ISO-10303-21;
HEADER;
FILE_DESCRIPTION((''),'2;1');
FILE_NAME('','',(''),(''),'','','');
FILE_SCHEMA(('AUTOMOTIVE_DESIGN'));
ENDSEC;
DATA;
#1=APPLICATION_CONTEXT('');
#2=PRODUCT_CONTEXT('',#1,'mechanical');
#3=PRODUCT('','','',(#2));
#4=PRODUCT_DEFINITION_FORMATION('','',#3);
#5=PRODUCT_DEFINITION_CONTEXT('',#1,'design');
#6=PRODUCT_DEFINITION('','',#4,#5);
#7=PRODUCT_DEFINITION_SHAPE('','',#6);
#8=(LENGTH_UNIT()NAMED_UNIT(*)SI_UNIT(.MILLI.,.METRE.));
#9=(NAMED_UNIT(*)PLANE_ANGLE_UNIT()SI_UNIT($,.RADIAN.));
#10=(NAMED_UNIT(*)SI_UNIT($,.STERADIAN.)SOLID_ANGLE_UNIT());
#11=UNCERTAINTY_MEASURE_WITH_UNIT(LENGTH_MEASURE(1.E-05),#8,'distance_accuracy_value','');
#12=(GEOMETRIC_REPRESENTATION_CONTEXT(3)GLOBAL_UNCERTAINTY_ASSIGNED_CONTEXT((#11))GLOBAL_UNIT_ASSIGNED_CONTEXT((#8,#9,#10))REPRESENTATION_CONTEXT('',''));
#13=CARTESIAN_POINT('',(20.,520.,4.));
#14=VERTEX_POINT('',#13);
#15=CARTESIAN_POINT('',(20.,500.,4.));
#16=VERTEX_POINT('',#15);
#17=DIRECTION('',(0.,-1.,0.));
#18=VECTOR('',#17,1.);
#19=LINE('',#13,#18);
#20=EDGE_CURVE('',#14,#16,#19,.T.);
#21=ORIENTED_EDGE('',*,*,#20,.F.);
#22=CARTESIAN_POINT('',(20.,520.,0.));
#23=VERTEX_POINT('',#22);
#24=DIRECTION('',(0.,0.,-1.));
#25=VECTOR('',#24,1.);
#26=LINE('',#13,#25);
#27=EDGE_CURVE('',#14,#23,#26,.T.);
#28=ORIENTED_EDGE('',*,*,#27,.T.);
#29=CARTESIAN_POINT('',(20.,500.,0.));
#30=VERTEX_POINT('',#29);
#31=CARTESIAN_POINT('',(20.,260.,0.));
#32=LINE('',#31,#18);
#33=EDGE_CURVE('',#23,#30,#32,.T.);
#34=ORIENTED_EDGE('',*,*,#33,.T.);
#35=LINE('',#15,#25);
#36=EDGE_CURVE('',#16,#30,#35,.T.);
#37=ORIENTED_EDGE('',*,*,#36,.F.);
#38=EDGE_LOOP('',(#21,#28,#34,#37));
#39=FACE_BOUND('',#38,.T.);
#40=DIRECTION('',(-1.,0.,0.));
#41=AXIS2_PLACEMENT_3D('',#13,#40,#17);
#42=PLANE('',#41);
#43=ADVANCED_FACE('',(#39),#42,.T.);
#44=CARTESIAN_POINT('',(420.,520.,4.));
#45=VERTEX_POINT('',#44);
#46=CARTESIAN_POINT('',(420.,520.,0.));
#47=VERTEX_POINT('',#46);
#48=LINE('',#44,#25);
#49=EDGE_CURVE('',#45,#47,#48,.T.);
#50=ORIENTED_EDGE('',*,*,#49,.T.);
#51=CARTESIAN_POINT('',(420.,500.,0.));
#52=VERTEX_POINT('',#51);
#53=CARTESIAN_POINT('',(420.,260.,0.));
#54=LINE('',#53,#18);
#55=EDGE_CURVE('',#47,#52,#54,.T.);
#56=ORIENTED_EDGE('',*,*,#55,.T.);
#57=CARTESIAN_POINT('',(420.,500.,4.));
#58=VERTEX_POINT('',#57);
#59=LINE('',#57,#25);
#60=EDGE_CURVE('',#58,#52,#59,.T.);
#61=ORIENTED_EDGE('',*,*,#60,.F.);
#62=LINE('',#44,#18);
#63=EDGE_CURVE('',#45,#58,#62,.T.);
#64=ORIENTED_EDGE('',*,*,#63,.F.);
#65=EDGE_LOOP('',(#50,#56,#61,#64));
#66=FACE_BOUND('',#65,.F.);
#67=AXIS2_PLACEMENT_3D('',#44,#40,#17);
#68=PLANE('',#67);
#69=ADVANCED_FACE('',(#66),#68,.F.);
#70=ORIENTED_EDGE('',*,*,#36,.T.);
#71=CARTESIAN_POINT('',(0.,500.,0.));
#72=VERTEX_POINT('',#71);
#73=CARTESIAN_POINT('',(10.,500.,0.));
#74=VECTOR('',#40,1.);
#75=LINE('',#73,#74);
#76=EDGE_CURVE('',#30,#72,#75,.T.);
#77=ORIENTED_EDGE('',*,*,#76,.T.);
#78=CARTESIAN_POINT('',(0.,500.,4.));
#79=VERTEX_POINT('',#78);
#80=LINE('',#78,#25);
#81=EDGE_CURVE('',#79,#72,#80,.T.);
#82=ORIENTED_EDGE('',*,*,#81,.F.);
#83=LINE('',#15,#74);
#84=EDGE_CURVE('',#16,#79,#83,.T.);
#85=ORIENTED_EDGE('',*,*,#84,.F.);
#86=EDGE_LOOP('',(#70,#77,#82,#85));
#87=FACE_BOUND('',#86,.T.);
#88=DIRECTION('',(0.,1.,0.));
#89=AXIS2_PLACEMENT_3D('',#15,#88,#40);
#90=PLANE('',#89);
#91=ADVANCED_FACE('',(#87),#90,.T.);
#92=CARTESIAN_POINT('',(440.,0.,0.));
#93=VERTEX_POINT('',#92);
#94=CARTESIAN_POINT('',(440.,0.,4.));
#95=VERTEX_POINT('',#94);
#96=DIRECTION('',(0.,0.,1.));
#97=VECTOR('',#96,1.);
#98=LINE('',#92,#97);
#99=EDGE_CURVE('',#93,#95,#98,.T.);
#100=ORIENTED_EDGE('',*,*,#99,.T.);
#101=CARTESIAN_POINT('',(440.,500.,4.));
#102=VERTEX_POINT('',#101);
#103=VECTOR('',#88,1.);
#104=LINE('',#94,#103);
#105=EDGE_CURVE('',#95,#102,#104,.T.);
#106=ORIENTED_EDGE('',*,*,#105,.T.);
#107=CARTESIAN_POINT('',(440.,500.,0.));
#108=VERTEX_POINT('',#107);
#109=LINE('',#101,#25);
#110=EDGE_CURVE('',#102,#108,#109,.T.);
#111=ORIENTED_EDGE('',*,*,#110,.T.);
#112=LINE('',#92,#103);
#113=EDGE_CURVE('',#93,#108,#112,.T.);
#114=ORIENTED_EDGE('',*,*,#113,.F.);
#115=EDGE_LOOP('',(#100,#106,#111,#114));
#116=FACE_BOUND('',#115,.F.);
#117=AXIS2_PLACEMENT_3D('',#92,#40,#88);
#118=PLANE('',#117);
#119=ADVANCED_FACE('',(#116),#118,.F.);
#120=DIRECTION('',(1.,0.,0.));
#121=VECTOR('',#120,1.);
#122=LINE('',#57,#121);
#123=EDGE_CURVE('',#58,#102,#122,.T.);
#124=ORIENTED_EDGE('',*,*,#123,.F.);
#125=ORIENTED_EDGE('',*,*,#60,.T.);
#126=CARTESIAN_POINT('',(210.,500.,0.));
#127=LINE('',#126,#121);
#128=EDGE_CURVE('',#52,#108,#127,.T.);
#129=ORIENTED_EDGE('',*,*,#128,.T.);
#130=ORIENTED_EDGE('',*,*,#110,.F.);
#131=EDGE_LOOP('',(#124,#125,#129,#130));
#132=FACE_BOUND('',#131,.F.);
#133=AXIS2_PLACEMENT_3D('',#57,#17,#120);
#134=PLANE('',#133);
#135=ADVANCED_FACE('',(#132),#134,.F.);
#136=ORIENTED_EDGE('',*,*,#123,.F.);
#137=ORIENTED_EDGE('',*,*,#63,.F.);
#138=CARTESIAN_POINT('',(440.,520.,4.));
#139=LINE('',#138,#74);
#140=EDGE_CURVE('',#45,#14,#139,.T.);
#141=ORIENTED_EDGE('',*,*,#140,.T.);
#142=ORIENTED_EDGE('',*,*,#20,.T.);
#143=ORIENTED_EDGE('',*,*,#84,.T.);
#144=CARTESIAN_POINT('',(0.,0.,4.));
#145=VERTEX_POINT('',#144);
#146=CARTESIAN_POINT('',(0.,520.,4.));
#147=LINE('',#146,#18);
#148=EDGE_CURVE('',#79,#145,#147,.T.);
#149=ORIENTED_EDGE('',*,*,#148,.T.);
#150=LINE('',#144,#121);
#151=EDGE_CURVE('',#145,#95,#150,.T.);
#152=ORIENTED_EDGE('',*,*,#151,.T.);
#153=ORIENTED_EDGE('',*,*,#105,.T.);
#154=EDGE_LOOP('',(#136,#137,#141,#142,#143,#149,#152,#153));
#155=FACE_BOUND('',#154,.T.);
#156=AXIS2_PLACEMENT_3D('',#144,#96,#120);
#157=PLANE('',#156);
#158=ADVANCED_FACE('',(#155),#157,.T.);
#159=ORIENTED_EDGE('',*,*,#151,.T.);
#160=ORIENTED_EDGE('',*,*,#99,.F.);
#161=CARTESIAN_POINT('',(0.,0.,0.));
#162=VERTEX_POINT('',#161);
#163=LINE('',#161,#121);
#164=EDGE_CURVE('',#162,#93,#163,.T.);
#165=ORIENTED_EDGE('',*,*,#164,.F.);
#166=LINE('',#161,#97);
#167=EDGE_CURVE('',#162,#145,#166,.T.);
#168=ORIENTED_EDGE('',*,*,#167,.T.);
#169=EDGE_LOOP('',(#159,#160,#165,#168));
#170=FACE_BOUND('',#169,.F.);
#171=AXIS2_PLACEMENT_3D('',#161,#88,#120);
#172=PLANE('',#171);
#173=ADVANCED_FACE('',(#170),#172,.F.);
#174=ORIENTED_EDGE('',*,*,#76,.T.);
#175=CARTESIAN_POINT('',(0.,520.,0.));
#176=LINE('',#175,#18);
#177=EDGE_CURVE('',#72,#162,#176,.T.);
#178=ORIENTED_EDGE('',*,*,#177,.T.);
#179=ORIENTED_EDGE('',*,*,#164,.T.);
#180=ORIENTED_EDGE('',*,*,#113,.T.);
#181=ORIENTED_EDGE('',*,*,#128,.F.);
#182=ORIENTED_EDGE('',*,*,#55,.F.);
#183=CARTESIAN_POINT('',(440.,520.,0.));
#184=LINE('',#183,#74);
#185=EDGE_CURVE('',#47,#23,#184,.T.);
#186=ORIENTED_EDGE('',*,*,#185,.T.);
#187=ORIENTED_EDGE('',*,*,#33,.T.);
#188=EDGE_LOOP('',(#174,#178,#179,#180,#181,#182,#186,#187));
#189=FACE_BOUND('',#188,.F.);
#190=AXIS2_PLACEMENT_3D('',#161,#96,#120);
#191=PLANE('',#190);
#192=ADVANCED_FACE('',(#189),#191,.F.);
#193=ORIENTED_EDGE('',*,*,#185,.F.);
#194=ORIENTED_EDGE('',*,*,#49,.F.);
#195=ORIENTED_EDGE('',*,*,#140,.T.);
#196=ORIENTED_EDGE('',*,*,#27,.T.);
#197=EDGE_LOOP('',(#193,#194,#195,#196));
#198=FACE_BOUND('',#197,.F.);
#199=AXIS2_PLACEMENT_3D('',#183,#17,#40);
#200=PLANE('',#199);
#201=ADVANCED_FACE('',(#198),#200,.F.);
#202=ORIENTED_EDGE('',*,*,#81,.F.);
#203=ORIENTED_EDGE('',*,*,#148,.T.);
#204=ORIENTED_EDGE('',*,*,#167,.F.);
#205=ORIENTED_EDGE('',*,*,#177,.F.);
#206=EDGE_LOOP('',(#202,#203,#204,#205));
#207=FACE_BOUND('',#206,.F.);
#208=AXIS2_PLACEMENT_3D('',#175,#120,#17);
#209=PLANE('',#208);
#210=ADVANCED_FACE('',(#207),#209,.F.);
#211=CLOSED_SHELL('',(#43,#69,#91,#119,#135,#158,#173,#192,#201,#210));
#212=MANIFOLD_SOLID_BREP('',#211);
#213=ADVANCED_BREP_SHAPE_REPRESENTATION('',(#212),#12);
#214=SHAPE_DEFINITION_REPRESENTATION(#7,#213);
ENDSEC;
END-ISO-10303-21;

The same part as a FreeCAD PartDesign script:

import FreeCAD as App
import Part
import Sketcher

doc = App.newDocument("Part")
body = doc.addObject("PartDesign::Body", "Body")

sketch1 = body.newObject("Sketcher::SketchObject", "Sketch")
sketch1.AttachmentSupport = (doc.getObject("XY_Plane"), [""])
sketch1.MapMode = "FlatFace"
sketch1.addGeometry([
    Part.LineSegment(App.Vector(0, 520, 0), App.Vector(0, 0, 0)),
    Part.LineSegment(App.Vector(0, 0, 0), App.Vector(440, 0, 0)),
    Part.LineSegment(App.Vector(440, 0, 0), App.Vector(440, 520, 0)),
    Part.LineSegment(App.Vector(440, 520, 0), App.Vector(0, 520, 0)),
], False)
sketch1.addConstraint([
    Sketcher.Constraint("Coincident", 0, 2, 1, 1),
    Sketcher.Constraint("Coincident", 1, 2, 2, 1),
    Sketcher.Constraint("Coincident", 2, 2, 3, 1),
    Sketcher.Constraint("Coincident", 3, 2, 0, 1),
    Sketcher.Constraint("Vertical", 0),
    Sketcher.Constraint("Horizontal", 1),
    Sketcher.Constraint("Vertical", 2),
    Sketcher.Constraint("Horizontal", 3),
    Sketcher.Constraint("Coincident", 0, 2, -1, 1),
    Sketcher.Constraint("DistanceX", 1, 1, 1, 2, 440.0),
    Sketcher.Constraint("DistanceY", 0, 2, 0, 1, 520.0),
])
pad1 = body.newObject("PartDesign::Pad", "Pad")
pad1.Profile = sketch1
pad1.Length = 4

sketch2 = body.newObject("Sketcher::SketchObject", "Sketch001")
sketch2.AttachmentSupport = (doc.getObject("XY_Plane"), [""])
sketch2.MapMode = "FlatFace"
sketch2.AttachmentOffset = App.Placement(App.Vector(0, 0, 4), App.Rotation())
sketch2.addGeometry([
    Part.LineSegment(App.Vector(440, 500, 0), App.Vector(440, 520, 0)),
    Part.LineSegment(App.Vector(440, 520, 0), App.Vector(420, 520, 0)),
    Part.LineSegment(App.Vector(420, 520, 0), App.Vector(420, 500, 0)),
    Part.LineSegment(App.Vector(420, 500, 0), App.Vector(440, 500, 0)),
    Part.LineSegment(App.Vector(20, 500, 0), App.Vector(20, 520, 0)),
    Part.LineSegment(App.Vector(20, 520, 0), App.Vector(0, 520, 0)),
    Part.LineSegment(App.Vector(0, 520, 0), App.Vector(0, 500, 0)),
    Part.LineSegment(App.Vector(0, 500, 0), App.Vector(20, 500, 0)),
], False)
sketch2.addConstraint([
    Sketcher.Constraint("Coincident", 0, 2, 1, 1),
    Sketcher.Constraint("Coincident", 1, 2, 2, 1),
    Sketcher.Constraint("Coincident", 2, 2, 3, 1),
    Sketcher.Constraint("Coincident", 3, 2, 0, 1),
    Sketcher.Constraint("Coincident", 4, 2, 5, 1),
    Sketcher.Constraint("Coincident", 5, 2, 6, 1),
    Sketcher.Constraint("Coincident", 6, 2, 7, 1),
    Sketcher.Constraint("Coincident", 7, 2, 4, 1),
    Sketcher.Constraint("Vertical", 0),
    Sketcher.Constraint("Horizontal", 1),
    Sketcher.Constraint("Vertical", 2),
    Sketcher.Constraint("Horizontal", 3),
    Sketcher.Constraint("Vertical", 4),
    Sketcher.Constraint("Horizontal", 5),
    Sketcher.Constraint("Vertical", 6),
    Sketcher.Constraint("Horizontal", 7),
    Sketcher.Constraint("PointOnObject", 5, 2, -2),
    Sketcher.Constraint("Horizontal", 1, 2, 4, 2),
    Sketcher.Constraint("Horizontal", 3, 2, 6, 2),
    Sketcher.Constraint("Equal", 3, 5),
    Sketcher.Constraint("Equal", 7, 0),
    Sketcher.Constraint("DistanceX", 1, 2, 1, 1, 20.0),
    Sketcher.Constraint("DistanceX", -1, 1, 0, 2, 440.0),
    Sketcher.Constraint("DistanceY", -1, 1, 0, 2, 520.0),
])
pocket1 = body.newObject("PartDesign::Pocket", "Pocket")
pocket1.Profile = sketch2
pocket1.Length = 10

doc.recompute()
